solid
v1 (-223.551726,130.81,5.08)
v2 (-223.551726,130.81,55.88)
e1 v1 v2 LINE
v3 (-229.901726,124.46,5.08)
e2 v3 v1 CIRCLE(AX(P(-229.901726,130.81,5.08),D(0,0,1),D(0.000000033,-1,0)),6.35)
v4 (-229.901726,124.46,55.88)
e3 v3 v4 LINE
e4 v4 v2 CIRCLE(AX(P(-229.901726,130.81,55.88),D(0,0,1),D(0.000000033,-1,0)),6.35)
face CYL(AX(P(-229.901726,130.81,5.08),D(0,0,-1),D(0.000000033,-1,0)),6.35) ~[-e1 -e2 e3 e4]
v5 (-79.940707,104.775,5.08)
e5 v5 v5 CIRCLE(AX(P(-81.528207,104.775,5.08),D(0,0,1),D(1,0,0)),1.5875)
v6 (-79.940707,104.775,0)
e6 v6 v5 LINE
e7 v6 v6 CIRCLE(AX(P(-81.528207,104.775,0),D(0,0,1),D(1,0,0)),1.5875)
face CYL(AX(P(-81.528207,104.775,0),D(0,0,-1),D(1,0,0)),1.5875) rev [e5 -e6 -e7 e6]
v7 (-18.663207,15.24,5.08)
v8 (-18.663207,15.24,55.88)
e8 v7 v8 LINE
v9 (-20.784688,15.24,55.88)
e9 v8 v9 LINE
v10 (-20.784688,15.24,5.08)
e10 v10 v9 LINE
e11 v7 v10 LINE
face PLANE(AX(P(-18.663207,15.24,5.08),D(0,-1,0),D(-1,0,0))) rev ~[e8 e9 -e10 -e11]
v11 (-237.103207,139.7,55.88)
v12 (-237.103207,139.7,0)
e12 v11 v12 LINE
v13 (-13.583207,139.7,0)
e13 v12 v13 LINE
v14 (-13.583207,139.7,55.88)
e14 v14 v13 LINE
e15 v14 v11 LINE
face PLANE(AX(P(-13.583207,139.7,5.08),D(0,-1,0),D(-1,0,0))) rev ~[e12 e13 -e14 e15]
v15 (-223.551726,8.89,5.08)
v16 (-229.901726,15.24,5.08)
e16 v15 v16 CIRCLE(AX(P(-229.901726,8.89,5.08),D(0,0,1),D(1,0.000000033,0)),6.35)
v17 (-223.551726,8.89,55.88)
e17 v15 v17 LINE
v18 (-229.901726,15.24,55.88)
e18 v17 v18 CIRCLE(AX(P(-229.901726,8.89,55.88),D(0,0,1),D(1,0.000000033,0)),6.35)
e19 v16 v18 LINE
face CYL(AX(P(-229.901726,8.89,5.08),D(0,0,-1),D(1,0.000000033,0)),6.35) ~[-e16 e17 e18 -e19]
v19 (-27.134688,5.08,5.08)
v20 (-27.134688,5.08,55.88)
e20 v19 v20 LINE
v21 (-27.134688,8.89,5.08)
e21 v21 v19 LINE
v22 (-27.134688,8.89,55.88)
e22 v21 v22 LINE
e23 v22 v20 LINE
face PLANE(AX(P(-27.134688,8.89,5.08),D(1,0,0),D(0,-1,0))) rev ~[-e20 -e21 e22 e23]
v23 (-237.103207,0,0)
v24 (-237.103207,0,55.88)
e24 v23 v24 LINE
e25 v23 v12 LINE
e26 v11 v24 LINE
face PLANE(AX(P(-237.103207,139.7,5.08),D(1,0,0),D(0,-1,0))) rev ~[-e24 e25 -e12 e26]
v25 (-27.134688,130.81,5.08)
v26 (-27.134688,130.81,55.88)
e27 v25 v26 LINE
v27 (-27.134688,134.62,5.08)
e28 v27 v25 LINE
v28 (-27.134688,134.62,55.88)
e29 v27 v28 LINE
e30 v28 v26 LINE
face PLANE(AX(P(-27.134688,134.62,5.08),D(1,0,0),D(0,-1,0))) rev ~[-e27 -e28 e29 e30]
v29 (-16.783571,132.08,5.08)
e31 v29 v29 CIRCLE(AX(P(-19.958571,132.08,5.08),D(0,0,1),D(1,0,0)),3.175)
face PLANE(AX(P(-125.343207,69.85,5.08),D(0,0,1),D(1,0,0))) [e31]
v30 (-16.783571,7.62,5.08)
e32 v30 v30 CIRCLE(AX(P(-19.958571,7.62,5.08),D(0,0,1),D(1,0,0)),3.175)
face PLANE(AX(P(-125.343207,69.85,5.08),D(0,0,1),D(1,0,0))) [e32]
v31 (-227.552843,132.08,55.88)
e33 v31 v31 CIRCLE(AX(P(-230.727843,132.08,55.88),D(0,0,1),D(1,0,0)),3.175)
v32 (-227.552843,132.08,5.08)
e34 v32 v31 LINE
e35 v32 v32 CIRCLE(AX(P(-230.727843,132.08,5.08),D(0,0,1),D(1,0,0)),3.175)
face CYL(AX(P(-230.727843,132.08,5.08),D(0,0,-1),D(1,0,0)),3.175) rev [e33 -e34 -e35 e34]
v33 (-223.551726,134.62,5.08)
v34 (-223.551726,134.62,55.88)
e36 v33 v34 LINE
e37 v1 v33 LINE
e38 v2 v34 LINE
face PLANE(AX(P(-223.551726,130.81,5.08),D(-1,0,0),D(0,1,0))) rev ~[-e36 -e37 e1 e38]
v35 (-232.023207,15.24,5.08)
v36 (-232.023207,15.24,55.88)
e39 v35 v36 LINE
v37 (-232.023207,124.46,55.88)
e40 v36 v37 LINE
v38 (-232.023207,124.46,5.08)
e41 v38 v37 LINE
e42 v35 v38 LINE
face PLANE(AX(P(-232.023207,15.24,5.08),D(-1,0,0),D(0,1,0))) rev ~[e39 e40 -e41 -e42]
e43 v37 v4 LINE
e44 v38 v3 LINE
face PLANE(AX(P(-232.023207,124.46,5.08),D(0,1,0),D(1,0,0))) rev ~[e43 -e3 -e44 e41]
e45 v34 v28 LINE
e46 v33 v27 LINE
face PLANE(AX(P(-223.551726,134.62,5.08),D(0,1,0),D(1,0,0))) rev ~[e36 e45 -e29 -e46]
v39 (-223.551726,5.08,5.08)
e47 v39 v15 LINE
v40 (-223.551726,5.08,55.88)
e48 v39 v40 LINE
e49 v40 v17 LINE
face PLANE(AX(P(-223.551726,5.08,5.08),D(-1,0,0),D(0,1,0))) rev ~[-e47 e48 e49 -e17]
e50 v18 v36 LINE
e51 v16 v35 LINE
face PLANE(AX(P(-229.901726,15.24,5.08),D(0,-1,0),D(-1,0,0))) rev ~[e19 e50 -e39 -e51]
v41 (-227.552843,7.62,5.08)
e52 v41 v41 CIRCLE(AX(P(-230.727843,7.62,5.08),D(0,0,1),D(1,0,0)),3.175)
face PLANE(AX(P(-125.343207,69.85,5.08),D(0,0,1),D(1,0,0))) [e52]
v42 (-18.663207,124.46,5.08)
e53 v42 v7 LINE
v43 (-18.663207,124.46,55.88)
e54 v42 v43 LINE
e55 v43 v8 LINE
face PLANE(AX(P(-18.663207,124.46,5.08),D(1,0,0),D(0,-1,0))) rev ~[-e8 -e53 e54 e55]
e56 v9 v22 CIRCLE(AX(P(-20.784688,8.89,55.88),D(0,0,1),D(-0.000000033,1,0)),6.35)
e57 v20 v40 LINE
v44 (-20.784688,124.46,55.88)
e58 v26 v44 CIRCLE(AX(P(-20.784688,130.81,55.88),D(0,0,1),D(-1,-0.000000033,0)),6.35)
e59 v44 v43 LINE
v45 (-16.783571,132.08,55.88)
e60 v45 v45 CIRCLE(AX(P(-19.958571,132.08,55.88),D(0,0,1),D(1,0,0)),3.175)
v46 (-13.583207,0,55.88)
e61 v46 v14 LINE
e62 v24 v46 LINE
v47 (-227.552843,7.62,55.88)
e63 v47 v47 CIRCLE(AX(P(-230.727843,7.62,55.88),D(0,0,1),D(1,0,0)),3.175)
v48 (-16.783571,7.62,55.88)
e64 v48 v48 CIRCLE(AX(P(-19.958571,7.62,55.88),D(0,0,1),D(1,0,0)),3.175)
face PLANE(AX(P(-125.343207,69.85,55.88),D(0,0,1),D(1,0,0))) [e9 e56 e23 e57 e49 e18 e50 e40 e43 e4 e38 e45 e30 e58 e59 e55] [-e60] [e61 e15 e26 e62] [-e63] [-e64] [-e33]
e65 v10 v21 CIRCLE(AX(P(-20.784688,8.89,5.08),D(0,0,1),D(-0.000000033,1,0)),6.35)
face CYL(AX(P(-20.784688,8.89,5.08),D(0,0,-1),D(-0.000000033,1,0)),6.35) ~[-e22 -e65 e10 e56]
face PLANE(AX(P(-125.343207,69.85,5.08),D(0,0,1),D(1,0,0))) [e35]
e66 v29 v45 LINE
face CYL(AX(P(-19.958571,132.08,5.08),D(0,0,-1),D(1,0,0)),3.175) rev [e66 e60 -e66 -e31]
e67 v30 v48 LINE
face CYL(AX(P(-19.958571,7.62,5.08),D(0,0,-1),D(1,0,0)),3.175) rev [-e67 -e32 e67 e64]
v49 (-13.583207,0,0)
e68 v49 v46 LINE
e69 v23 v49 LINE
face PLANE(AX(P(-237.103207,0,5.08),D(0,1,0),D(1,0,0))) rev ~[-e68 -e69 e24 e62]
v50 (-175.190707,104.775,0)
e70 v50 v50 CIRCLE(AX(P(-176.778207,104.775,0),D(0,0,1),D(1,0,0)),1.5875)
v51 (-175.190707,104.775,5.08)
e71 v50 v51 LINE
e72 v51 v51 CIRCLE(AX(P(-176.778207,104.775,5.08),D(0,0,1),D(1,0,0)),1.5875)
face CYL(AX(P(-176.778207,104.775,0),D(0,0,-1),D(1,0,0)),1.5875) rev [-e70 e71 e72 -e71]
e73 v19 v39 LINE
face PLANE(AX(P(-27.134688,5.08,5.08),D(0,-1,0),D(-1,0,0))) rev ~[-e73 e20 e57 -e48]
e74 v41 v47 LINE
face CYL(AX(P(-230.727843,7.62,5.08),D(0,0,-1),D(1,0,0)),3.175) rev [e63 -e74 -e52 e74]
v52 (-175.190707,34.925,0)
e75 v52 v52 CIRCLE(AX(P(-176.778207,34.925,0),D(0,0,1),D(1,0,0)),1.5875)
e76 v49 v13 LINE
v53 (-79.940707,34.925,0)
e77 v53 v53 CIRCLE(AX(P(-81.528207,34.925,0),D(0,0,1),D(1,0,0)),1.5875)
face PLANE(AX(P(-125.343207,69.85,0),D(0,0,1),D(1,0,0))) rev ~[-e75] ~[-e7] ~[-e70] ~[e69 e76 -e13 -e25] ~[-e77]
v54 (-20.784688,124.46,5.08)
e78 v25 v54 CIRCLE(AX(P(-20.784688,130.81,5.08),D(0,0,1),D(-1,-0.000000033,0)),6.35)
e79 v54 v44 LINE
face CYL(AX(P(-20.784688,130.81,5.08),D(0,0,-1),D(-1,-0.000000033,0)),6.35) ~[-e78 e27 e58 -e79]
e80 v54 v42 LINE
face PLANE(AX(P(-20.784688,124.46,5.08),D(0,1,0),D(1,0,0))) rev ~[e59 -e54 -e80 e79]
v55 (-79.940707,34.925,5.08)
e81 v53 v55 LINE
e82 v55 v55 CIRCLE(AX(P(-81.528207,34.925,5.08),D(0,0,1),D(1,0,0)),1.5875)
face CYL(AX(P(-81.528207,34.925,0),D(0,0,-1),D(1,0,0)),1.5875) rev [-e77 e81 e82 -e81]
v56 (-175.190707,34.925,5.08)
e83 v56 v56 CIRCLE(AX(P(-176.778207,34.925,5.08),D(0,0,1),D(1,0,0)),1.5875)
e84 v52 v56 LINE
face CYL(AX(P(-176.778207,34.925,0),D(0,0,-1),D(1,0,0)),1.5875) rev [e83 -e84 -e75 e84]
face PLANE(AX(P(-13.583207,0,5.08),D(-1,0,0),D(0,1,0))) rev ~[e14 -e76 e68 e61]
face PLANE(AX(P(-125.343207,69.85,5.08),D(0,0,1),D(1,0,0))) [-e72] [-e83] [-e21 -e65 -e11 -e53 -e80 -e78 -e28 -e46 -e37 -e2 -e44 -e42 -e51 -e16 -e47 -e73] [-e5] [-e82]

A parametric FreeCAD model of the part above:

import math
import FreeCAD as App
import Part
import Sketcher

V = App.Vector
Q = App.Units.Quantity


def add_polygon(sketch, points):
    """Adds a closed chain of lines whose ends are joined by coincident constraints."""
    first, n = sketch.GeometryCount, len(points)
    for a, b in zip(points, points[1:] + points[:1]):
        sketch.addGeometry(Part.LineSegment(App.Vector(*a, 0), App.Vector(*b, 0)), False)
    for i in range(n):
        sketch.addConstraint(Sketcher.Constraint("Coincident", first + i, 2, first + (i + 1) % n, 1))

doc = App.newDocument("Part")
body = doc.addObject("PartDesign::Body", "Body")

# Sketch on XY plane
sketch1 = doc.addObject("Sketcher::SketchObject", "Sketch")
body.addObject(sketch1)
sketch1.AttachmentSupport = (doc.XY_Plane, [""])
sketch1.MapMode = "FlatFace"
add_polygon(sketch1, [(-237.1, 139.7), (-237.1, 0), (-13.6, 0), (-13.6, 139.7)])  # lines 0-3
sketch1.addGeometry(Part.Circle(V(-176.8, 34.9, 0), V(0, 0, 1), 1.6), False)  # 4
sketch1.addGeometry(Part.Circle(V(-81.5, 34.9, 0), V(0, 0, 1), 1.6), False)  # 5
sketch1.addGeometry(Part.Circle(V(-176.8, 104.8, 0), V(0, 0, 1), 1.6), False)  # 6
sketch1.addGeometry(Part.Circle(V(-81.5, 104.8, 0), V(0, 0, 1), 1.6), False)  # 7
sketch1.addConstraint(Sketcher.Constraint("Vertical", 0))
sketch1.addConstraint(Sketcher.Constraint("Horizontal", 1))
sketch1.addConstraint(Sketcher.Constraint("Vertical", 2))
sketch1.addConstraint(Sketcher.Constraint("Horizontal", 3))
sketch1.addConstraint(Sketcher.Constraint("Equal", 4, 5))
sketch1.addConstraint(Sketcher.Constraint("Equal", 5, 6))
sketch1.addConstraint(Sketcher.Constraint("Equal", 6, 7))
sketch1.addConstraint(Sketcher.Constraint("PointOnObject", 0, 2, -1))
sketch1.addConstraint(Sketcher.Constraint("Horizontal", 4, 3, 5, 3))
sketch1.addConstraint(Sketcher.Constraint("Horizontal", 6, 3, 7, 3))
sketch1.addConstraint(Sketcher.Constraint("Vertical", 4, 3, 6, 3))
sketch1.addConstraint(Sketcher.Constraint("Vertical", 5, 3, 7, 3))
sketch1.addConstraint(Sketcher.Constraint("Diameter", 4, Q("0.125 in")))
sketch1.addConstraint(Sketcher.Constraint("DistanceX", 1, 1, 1, 2, Q("8.8 in")))
sketch1.addConstraint(Sketcher.Constraint("DistanceY", 0, 2, 0, 1, Q("5.5 in")))
sketch1.addConstraint(Sketcher.Constraint("DistanceX", 4, 3, 5, 3, Q("3.75 in")))
sketch1.addConstraint(Sketcher.Constraint("DistanceY", 4, 3, 6, 3, Q("2.75 in")))
sketch1.addConstraint(Sketcher.Constraint("DistanceY", -1, 1, 4, 3, Q("1.375 in")))
sketch1.addConstraint(Sketcher.Constraint("DistanceX", 0, 2, 4, 3, Q("2.375 in")))
sketch1.addConstraint(Sketcher.Constraint("DistanceX", 4, 3, -1, 1, 176.778207))
pad1 = doc.addObject("PartDesign::Pad", "Pad")
body.addObject(pad1)
pad1.Profile = sketch1
pad1.Length = Q("0.2 in")

# Sketch on XY plane
sketch2 = doc.addObject("Sketcher::SketchObject", "Sketch001")
body.addObject(sketch2)
sketch2.AttachmentSupport = (doc.XY_Plane, [""])
sketch2.MapMode = "FlatFace"
sketch2.AttachmentOffset = App.Placement(V(0, 0, 0.2 * 25.4), App.Rotation())
add_polygon(sketch2, [(-237.1, 139.7), (-237.1, 0), (-13.6, 0), (-13.6, 139.7)])  # lines 0-3
sketch2.addGeometry(Part.Circle(V(-230.7, 7.6, 0), V(0, 0, 1), 3.2), False)  # 4
sketch2.addGeometry(Part.Circle(V(-20, 7.6, 0), V(0, 0, 1), 3.2), False)  # 5
sketch2.addGeometry(Part.Circle(V(-230.7, 132.1, 0), V(0, 0, 1), 3.2), False)  # 6
sketch2.addGeometry(Part.LineSegment(V(-229.9, 15.2, 0), V(-232, 15.2, 0)), False)  # 7
sketch2.addGeometry(Part.LineSegment(V(-232, 15.2, 0), V(-232, 124.5, 0)), False)  # 8
sketch2.addGeometry(Part.LineSegment(V(-232, 124.5, 0), V(-229.9, 124.5, 0)), False)  # 9
sketch2.addGeometry(Part.ArcOfCircle(Part.Circle(V(-229.9, 130.8, 0), V(0, 0, 1), 6.4), math.radians(-90), math.radians(0)), False)  # 10
sketch2.addGeometry(Part.LineSegment(V(-223.6, 130.8, 0), V(-223.6, 134.6, 0)), False)  # 11
sketch2.addGeometry(Part.LineSegment(V(-223.6, 134.6, 0), V(-27.1, 134.6, 0)), False)  # 12
sketch2.addGeometry(Part.LineSegment(V(-27.1, 134.6, 0), V(-27.1, 130.8, 0)), False)  # 13
sketch2.addGeometry(Part.ArcOfCircle(Part.Circle(V(-20.8, 130.8, 0), V(0, 0, 1), 6.4), math.radians(-180), math.radians(-90)), False)  # 14
sketch2.addGeometry(Part.LineSegment(V(-20.8, 124.5, 0), V(-18.7, 124.5, 0)), False)  # 15
sketch2.addGeometry(Part.LineSegment(V(-18.7, 124.5, 0), V(-18.7, 15.2, 0)), False)  # 16
sketch2.addGeometry(Part.LineSegment(V(-18.7, 15.2, 0), V(-20.8, 15.2, 0)), False)  # 17
sketch2.addGeometry(Part.ArcOfCircle(Part.Circle(V(-20.8, 8.9, 0), V(0, 0, 1), 6.4), math.radians(90), math.radians(180)), False)  # 18
sketch2.addGeometry(Part.LineSegment(V(-27.1, 8.9, 0), V(-27.1, 5.1, 0)), False)  # 19
sketch2.addGeometry(Part.LineSegment(V(-27.1, 5.1, 0), V(-223.6, 5.1, 0)), False)  # 20
sketch2.addGeometry(Part.LineSegment(V(-223.6, 5.1, 0), V(-223.6, 8.9, 0)), False)  # 21
sketch2.addGeometry(Part.ArcOfCircle(Part.Circle(V(-229.9, 8.9, 0), V(0, 0, 1), 6.4), math.radians(0), math.radians(90)), False)  # 22
sketch2.addGeometry(Part.Circle(V(-20, 132.1, 0), V(0, 0, 1), 3.2), False)  # 23
sketch2.addConstraint(Sketcher.Constraint("Coincident", 7, 2, 8, 1))
sketch2.addConstraint(Sketcher.Constraint("Coincident", 8, 2, 9, 1))
sketch2.addConstraint(Sketcher.Constraint("Tangent", 9, 2, 10, 1))
sketch2.addConstraint(Sketcher.Constraint("Tangent", 10, 2, 11, 1))
sketch2.addConstraint(Sketcher.Constraint("Coincident", 11, 2, 12, 1))
sketch2.addConstraint(Sketcher.Constraint("Coincident", 12, 2, 13, 1))
sketch2.addConstraint(Sketcher.Constraint("Tangent", 13, 2, 14, 1))
sketch2.addConstraint(Sketcher.Constraint("Tangent", 14, 2, 15, 1))
sketch2.addConstraint(Sketcher.Constraint("Coincident", 15, 2, 16, 1))
sketch2.addConstraint(Sketcher.Constraint("Coincident", 16, 2, 17, 1))
sketch2.addConstraint(Sketcher.Constraint("Tangent", 17, 2, 18, 1))
sketch2.addConstraint(Sketcher.Constraint("Tangent", 18, 2, 19, 1))
sketch2.addConstraint(Sketcher.Constraint("Coincident", 19, 2, 20, 1))
sketch2.addConstraint(Sketcher.Constraint("Coincident", 20, 2, 21, 1))
sketch2.addConstraint(Sketcher.Constraint("Tangent", 21, 2, 22, 1))
sketch2.addConstraint(Sketcher.Constraint("Tangent", 22, 2, 7, 1))
sketch2.addConstraint(Sketcher.Constraint("Vertical", 0))
sketch2.addConstraint(Sketcher.Constraint("Horizontal", 1))
sketch2.addConstraint(Sketcher.Constraint("Vertical", 2))
sketch2.addConstraint(Sketcher.Constraint("Horizontal", 3))
sketch2.addConstraint(Sketcher.Constraint("Horizontal", 7))
sketch2.addConstraint(Sketcher.Constraint("Vertical", 8))
sketch2.addConstraint(Sketcher.Constraint("Horizontal", 9))
sketch2.addConstraint(Sketcher.Constraint("Vertical", 11))
sketch2.addConstraint(Sketcher.Constraint("Horizontal", 12))
sketch2.addConstraint(Sketcher.Constraint("Vertical", 13))
sketch2.addConstraint(Sketcher.Constraint("Horizontal", 15))
sketch2.addConstraint(Sketcher.Constraint("Vertical", 16))
sketch2.addConstraint(Sketcher.Constraint("Horizontal", 17))
sketch2.addConstraint(Sketcher.Constraint("Vertical", 19))
sketch2.addConstraint(Sketcher.Constraint("Horizontal", 20))
sketch2.addConstraint(Sketcher.Constraint("Vertical", 21))
sketch2.addConstraint(Sketcher.Constraint("Equal", 4, 5))
sketch2.addConstraint(Sketcher.Constraint("Equal", 5, 6))
sketch2.addConstraint(Sketcher.Constraint("Equal", 10, 14))
sketch2.addConstraint(Sketcher.Constraint("Equal", 14, 18))
sketch2.addConstraint(Sketcher.Constraint("Equal", 18, 22))
sketch2.addConstraint(Sketcher.Constraint("Equal", 6, 23))
sketch2.addConstraint(Sketcher.Constraint("PointOnObject", 0, 2, -1))
sketch2.addConstraint(Sketcher.Constraint("Horizontal", 4, 3, 5, 3))
sketch2.addConstraint(Sketcher.Constraint("Horizontal", 10, 3, 14, 3))
sketch2.addConstraint(Sketcher.Constraint("Horizontal", 18, 3, 22, 3))
sketch2.addConstraint(Sketcher.Constraint("Horizontal", 6, 3, 23, 3))
sketch2.addConstraint(Sketcher.Constraint("Vertical", 4, 3, 6, 3))
sketch2.addConstraint(Sketcher.Constraint("Vertical", 14, 3, 18, 3))
sketch2.addConstraint(Sketcher.Constraint("Vertical", 10, 3, 22, 3))
sketch2.addConstraint(Sketcher.Constraint("Vertical", 5, 3, 23, 3))
sketch2.addConstraint(Sketcher.Constraint("Equal", 9, 15))
sketch2.addConstraint(Sketcher.Constraint("Equal", 13, 19))
sketch2.addConstraint(Sketcher.Constraint("Diameter", 4, Q("0.25 in")))
sketch2.addConstraint(Sketcher.Constraint("Radius", 10, Q("0.25 in")))
sketch2.addConstraint(Sketcher.Constraint("DistanceX", 1, 1, 1, 2, Q("8.8 in")))
sketch2.addConstraint(Sketcher.Constraint("DistanceY", 0, 2, 0, 1, Q("5.5 in")))
sketch2.addConstraint(Sketcher.Constraint("DistanceY", 8, 1, 8, 2, Q("4.3 in")))
sketch2.addConstraint(Sketcher.Constraint("DistanceY", 5, 3, 12, 2, Q("5 in")))
sketch2.addConstraint(Sketcher.Constraint("DistanceY", 11, 1, 11, 2, Q("0.15 in")))
sketch2.addConstraint(Sketcher.Constraint("DistanceY", -1, 1, 4, 3, Q("0.3 in")))
sketch2.addConstraint(Sketcher.Constraint("DistanceY", -1, 1, 6, 3, Q("5.2 in")))
sketch2.addConstraint(Sketcher.Constraint("DistanceX", 0, 2, 7, 2, Q("0.2 in")))
sketch2.addConstraint(Sketcher.Constraint("DistanceX", 16, 2, 1, 2, Q("0.2 in")))
sketch2.addConstraint(Sketcher.Constraint("DistanceX", 7, 2, 7, 1, 2.121481))
sketch2.addConstraint(Sketcher.Constraint("DistanceX", 5, 3, -1, 1, 19.958571))
sketch2.addConstraint(Sketcher.Constraint("DistanceX", 12, 2, -1, 1, 27.134688))
sketch2.addConstraint(Sketcher.Constraint("DistanceX", 4, 3, 5, 3, 210.769272))
pad2 = doc.addObject("PartDesign::Pad", "Pad001")
body.addObject(pad2)
pad2.Profile = sketch2
pad2.Length = Q("2 in")

doc.recompute()
